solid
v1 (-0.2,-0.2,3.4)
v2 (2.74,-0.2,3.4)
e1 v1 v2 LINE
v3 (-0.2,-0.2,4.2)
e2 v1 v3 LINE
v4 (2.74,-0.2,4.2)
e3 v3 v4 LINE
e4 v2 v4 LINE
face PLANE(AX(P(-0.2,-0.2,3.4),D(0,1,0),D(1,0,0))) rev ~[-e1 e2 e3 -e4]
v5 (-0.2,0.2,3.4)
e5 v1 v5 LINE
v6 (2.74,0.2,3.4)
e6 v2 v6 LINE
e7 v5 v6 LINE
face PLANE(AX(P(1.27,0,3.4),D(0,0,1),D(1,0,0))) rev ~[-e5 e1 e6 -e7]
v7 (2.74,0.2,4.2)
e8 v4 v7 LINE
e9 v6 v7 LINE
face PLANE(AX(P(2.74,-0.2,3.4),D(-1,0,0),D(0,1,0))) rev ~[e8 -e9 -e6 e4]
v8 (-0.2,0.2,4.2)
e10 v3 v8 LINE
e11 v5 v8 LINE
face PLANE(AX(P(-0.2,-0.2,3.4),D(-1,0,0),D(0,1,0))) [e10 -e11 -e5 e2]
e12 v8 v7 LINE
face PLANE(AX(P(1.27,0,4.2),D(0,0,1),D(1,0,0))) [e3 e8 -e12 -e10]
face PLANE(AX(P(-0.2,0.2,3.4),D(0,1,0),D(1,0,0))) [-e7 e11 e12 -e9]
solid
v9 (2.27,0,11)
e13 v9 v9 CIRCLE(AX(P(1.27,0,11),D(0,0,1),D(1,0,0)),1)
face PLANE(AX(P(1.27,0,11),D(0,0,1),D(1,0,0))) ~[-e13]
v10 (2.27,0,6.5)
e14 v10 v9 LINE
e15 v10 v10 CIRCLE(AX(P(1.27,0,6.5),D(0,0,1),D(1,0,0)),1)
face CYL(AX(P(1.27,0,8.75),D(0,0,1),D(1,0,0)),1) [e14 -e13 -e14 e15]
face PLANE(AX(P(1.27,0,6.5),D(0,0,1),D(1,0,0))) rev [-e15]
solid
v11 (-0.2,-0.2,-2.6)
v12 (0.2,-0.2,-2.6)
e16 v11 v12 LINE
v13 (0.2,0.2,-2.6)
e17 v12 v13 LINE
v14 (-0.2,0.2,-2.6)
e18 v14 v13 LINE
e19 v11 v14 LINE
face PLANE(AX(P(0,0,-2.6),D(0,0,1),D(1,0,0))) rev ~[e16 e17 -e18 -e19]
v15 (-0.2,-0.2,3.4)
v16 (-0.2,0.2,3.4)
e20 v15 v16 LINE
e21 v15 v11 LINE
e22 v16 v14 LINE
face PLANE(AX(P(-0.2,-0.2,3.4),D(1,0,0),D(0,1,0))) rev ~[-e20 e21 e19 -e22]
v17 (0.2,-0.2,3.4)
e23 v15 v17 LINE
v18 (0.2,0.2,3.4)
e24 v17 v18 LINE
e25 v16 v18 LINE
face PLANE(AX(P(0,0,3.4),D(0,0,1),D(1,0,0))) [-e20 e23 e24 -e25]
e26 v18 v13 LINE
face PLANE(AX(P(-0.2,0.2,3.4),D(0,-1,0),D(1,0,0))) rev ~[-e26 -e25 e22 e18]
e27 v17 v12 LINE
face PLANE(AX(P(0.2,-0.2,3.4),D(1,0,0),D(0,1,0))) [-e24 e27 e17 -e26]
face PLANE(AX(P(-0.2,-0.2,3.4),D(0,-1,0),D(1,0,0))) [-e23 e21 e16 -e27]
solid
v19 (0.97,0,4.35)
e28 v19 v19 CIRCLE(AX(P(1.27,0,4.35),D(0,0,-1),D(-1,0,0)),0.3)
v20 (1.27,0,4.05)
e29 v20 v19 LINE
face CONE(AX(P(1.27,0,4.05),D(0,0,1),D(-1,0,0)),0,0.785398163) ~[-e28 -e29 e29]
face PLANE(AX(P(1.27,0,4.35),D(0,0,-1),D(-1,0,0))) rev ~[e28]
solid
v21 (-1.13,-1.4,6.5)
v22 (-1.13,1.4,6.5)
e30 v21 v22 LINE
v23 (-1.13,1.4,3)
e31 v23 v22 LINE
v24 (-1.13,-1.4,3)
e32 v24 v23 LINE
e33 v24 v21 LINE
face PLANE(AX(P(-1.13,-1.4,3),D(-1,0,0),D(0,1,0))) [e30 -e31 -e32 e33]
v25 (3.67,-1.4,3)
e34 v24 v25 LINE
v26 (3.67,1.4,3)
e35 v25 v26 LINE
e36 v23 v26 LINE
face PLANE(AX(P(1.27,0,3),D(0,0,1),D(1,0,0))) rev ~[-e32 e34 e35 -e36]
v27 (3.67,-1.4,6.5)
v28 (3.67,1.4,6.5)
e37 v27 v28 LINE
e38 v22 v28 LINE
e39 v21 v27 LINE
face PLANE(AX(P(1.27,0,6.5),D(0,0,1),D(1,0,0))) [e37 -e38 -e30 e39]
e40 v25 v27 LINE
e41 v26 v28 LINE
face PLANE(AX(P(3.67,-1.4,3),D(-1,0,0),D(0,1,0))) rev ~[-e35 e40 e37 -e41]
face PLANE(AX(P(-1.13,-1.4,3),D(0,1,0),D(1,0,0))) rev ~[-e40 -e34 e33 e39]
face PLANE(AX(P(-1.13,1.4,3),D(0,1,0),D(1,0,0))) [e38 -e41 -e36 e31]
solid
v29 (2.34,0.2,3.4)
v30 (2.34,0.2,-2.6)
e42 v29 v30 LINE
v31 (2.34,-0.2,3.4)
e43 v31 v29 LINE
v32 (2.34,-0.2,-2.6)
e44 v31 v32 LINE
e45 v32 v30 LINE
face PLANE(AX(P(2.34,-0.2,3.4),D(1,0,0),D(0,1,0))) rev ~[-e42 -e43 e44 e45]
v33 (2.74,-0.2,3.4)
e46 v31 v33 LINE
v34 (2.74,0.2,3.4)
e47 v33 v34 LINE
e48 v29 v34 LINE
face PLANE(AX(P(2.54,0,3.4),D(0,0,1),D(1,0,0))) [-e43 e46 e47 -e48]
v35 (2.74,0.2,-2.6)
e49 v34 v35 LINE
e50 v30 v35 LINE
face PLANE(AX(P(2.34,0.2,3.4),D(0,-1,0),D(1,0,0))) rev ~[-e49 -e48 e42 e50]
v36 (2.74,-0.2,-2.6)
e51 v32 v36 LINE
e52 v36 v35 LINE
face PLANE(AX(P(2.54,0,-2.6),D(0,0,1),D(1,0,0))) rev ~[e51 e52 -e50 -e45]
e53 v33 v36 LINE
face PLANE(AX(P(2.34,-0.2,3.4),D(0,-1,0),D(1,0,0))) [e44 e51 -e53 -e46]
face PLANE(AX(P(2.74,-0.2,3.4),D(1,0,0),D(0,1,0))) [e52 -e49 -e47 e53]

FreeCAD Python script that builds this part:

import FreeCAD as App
import Part
import Sketcher
from FreeCAD import Vector


def add_polygon(sketch, points):
    """Adds a closed chain of lines whose ends are joined by coincident constraints."""
    first, n = sketch.GeometryCount, len(points)
    for a, b in zip(points, points[1:] + points[:1]):
        sketch.addGeometry(Part.LineSegment(App.Vector(*a, 0), App.Vector(*b, 0)), False)
    for i in range(n):
        sketch.addConstraint(Sketcher.Constraint("Coincident", first + i, 2, first + (i + 1) % n, 1))

doc = App.newDocument("Part")
body = doc.addObject("PartDesign::Body", "Body")

# Sketch on XZ plane
sketch1 = body.newObject("Sketcher::SketchObject", "Sketch")
sketch1.AttachmentSupport = (doc.getObject("XZ_Plane"), [""])
sketch1.MapMode = "FlatFace"
add_polygon(sketch1, [(1.3, 11), (1.3, 6.5), (2.3, 6.5), (2.3, 11)])  # lines 0-3
sketch1.addGeometry(Part.LineSegment(Vector(1.3, 6.5, 0), Vector(1.3, 11, 0)), True)  # axis
sketch1.addConstraint([
    Sketcher.Constraint("Vertical", 0),
    Sketcher.Constraint("Horizontal", 1),
    Sketcher.Constraint("Vertical", 2),
    Sketcher.Constraint("Horizontal", 3),
    Sketcher.Constraint("Vertical", 4),
    Sketcher.Constraint("Coincident", 4, 1, 0, 2),
    Sketcher.Constraint("Horizontal", 2, 2, 4, 2),
    Sketcher.Constraint("DistanceX", 1, 1, 1, 2, 1.0),
    Sketcher.Constraint("DistanceY", 0, 2, 0, 1, 4.5),
    Sketcher.Constraint("DistanceY", -1, 1, 2, 2, 11.0),
    Sketcher.Constraint("DistanceX", -1, 1, 0, 2, 1.27),
])
revolution = body.newObject("PartDesign::Revolution", "Revolution")
revolution.Profile = sketch1
revolution.ReferenceAxis = (sketch1, ["Axis0"])
revolution.Angle = 360
body2 = doc.addObject("PartDesign::Body", "Body001")

# Sketch on XY plane
sketch2 = body2.newObject("Sketcher::SketchObject", "Sketch001")
sketch2.AttachmentSupport = (doc.getObject("XY_Plane001"), [""])
sketch2.MapMode = "FlatFace"
sketch2.AttachmentOffset = App.Placement(Vector(0, 0, 3), App.Rotation())
add_polygon(sketch2, [(-1.1, 1.4), (-1.1, -1.4), (3.7, -1.4), (3.7, 1.4)])  # lines 0-3
sketch2.addConstraint([
    Sketcher.Constraint("Vertical", 0),
    Sketcher.Constraint("Horizontal", 1),
    Sketcher.Constraint("Vertical", 2),
    Sketcher.Constraint("Horizontal", 3),
    Sketcher.Constraint("DistanceX", 1, 1, 1, 2, 4.8),
    Sketcher.Constraint("DistanceY", 0, 2, 0, 1, 2.8),
    Sketcher.Constraint("DistanceY", 0, 2, -1, 1, 1.4),
    Sketcher.Constraint("DistanceX", 0, 2, -1, 1, 1.13),
])
pad1 = body2.newObject("PartDesign::Pad", "Pad")
pad1.Profile = sketch2
pad1.Length = 3.5
body3 = doc.addObject("PartDesign::Body", "Body002")
body3.AllowCompound = True

# Sketch on XY plane
sketch3 = body3.newObject("Sketcher::SketchObject", "Sketch002")
sketch3.AttachmentSupport = (doc.getObject("XY_Plane002"), [""])
sketch3.MapMode = "FlatFace"
sketch3.AttachmentOffset = App.Placement(Vector(0, 0, 3.4), App.Rotation())
add_polygon(sketch3, [(-0.2, 0.2), (-0.2, -0.2), (0.2, -0.2), (0.2, 0.2)])  # lines 0-3
add_polygon(sketch3, [(2.34, 0.2), (2.34, -0.2), (2.74, -0.2), (2.74, 0.2)])  # lines 4-7
sketch3.addConstraint([
    Sketcher.Constraint("Vertical", 0),
    Sketcher.Constraint("Horizontal", 1),
    Sketcher.Constraint("Vertical", 2),
    Sketcher.Constraint("Horizontal", 3),
    Sketcher.Constraint("Vertical", 4),
    Sketcher.Constraint("Horizontal", 5),
    Sketcher.Constraint("Vertical", 6),
    Sketcher.Constraint("Horizontal", 7),
    Sketcher.Constraint("Symmetric", 0, 2, 2, 2, -1, 1),
    Sketcher.Constraint("Horizontal", 1, 2, 4, 2),
    Sketcher.Constraint("Horizontal", 3, 2, 6, 2),
    Sketcher.Constraint("Equal", 3, 5),
    Sketcher.Constraint("Equal", 7, 0),
    Sketcher.Constraint("DistanceX", 1, 1, 1, 2, 0.4),
    Sketcher.Constraint("DistanceX", -1, 1, 4, 2, 2.34),
])
pad2 = body3.newObject("PartDesign::Pad", "Pad001")
pad2.Profile = sketch3
pad2.Length = 6
pad2.Reversed = True
body4 = doc.addObject("PartDesign::Body", "Body003")

# Sketch on XY plane
sketch4 = body4.newObject("Sketcher::SketchObject", "Sketch003")
sketch4.AttachmentSupport = (doc.getObject("XY_Plane003"), [""])
sketch4.MapMode = "FlatFace"
sketch4.AttachmentOffset = App.Placement(Vector(0, 0, 3.4), App.Rotation())
add_polygon(sketch4, [(-0.2, 0.2), (-0.2, -0.2), (2.74, -0.2), (2.74, 0.2)])  # lines 0-3
sketch4.addConstraint([
    Sketcher.Constraint("Vertical", 0),
    Sketcher.Constraint("Horizontal", 1),
    Sketcher.Constraint("Vertical", 2),
    Sketcher.Constraint("Horizontal", 3),
    Sketcher.Constraint("DistanceY", 0, 2, 0, 1, 0.4),
    Sketcher.Constraint("DistanceX", 1, 1, 1, 2, 2.94),
    Sketcher.Constraint("DistanceX", 0, 2, -1, 1, 0.2),
    Sketcher.Constraint("DistanceY", 0, 2, -1, 1, 0.2),
])
pad3 = body4.newObject("PartDesign::Pad", "Pad002")
pad3.Profile = sketch4
pad3.Length = 0.8
body5 = doc.addObject("PartDesign::Body", "Body004")

# Sketch on XZ plane
sketch5 = body5.newObject("Sketcher::SketchObject", "Sketch004")
sketch5.AttachmentSupport = (doc.getObject("XZ_Plane004"), [""])
sketch5.MapMode = "FlatFace"
add_polygon(sketch5, [(0.97, 4.35), (1.27, 4.05), (1.27, 4.35)])  # lines 0-2
sketch5.addGeometry(Part.LineSegment(Vector(1.27, 4.35, 0), Vector(1.27, 4.05, 0)), True)  # axis
sketch5.addConstraint([
    Sketcher.Constraint("Vertical", 1),
    Sketcher.Constraint("Horizontal", 2),
    Sketcher.Constraint("Vertical", 3),
    Sketcher.Constraint("Coincident", 3, 1, 1, 2),
    Sketcher.Constraint("Equal", 2, 1),
    Sketcher.Constraint("Equal", 1, 3),
    Sketcher.Constraint("DistanceX", 2, 2, 2, 1, 0.3),
    Sketcher.Constraint("DistanceX", -1, 1, 0, 2, 1.27),
    Sketcher.Constraint("DistanceY", -1, 1, 0, 2, 4.05),
])
revolution2 = body5.newObject("PartDesign::Revolution", "Revolution001")
revolution2.Profile = sketch5
revolution2.ReferenceAxis = (sketch5, ["Axis0"])
revolution2.Angle = 360

doc.recompute()
